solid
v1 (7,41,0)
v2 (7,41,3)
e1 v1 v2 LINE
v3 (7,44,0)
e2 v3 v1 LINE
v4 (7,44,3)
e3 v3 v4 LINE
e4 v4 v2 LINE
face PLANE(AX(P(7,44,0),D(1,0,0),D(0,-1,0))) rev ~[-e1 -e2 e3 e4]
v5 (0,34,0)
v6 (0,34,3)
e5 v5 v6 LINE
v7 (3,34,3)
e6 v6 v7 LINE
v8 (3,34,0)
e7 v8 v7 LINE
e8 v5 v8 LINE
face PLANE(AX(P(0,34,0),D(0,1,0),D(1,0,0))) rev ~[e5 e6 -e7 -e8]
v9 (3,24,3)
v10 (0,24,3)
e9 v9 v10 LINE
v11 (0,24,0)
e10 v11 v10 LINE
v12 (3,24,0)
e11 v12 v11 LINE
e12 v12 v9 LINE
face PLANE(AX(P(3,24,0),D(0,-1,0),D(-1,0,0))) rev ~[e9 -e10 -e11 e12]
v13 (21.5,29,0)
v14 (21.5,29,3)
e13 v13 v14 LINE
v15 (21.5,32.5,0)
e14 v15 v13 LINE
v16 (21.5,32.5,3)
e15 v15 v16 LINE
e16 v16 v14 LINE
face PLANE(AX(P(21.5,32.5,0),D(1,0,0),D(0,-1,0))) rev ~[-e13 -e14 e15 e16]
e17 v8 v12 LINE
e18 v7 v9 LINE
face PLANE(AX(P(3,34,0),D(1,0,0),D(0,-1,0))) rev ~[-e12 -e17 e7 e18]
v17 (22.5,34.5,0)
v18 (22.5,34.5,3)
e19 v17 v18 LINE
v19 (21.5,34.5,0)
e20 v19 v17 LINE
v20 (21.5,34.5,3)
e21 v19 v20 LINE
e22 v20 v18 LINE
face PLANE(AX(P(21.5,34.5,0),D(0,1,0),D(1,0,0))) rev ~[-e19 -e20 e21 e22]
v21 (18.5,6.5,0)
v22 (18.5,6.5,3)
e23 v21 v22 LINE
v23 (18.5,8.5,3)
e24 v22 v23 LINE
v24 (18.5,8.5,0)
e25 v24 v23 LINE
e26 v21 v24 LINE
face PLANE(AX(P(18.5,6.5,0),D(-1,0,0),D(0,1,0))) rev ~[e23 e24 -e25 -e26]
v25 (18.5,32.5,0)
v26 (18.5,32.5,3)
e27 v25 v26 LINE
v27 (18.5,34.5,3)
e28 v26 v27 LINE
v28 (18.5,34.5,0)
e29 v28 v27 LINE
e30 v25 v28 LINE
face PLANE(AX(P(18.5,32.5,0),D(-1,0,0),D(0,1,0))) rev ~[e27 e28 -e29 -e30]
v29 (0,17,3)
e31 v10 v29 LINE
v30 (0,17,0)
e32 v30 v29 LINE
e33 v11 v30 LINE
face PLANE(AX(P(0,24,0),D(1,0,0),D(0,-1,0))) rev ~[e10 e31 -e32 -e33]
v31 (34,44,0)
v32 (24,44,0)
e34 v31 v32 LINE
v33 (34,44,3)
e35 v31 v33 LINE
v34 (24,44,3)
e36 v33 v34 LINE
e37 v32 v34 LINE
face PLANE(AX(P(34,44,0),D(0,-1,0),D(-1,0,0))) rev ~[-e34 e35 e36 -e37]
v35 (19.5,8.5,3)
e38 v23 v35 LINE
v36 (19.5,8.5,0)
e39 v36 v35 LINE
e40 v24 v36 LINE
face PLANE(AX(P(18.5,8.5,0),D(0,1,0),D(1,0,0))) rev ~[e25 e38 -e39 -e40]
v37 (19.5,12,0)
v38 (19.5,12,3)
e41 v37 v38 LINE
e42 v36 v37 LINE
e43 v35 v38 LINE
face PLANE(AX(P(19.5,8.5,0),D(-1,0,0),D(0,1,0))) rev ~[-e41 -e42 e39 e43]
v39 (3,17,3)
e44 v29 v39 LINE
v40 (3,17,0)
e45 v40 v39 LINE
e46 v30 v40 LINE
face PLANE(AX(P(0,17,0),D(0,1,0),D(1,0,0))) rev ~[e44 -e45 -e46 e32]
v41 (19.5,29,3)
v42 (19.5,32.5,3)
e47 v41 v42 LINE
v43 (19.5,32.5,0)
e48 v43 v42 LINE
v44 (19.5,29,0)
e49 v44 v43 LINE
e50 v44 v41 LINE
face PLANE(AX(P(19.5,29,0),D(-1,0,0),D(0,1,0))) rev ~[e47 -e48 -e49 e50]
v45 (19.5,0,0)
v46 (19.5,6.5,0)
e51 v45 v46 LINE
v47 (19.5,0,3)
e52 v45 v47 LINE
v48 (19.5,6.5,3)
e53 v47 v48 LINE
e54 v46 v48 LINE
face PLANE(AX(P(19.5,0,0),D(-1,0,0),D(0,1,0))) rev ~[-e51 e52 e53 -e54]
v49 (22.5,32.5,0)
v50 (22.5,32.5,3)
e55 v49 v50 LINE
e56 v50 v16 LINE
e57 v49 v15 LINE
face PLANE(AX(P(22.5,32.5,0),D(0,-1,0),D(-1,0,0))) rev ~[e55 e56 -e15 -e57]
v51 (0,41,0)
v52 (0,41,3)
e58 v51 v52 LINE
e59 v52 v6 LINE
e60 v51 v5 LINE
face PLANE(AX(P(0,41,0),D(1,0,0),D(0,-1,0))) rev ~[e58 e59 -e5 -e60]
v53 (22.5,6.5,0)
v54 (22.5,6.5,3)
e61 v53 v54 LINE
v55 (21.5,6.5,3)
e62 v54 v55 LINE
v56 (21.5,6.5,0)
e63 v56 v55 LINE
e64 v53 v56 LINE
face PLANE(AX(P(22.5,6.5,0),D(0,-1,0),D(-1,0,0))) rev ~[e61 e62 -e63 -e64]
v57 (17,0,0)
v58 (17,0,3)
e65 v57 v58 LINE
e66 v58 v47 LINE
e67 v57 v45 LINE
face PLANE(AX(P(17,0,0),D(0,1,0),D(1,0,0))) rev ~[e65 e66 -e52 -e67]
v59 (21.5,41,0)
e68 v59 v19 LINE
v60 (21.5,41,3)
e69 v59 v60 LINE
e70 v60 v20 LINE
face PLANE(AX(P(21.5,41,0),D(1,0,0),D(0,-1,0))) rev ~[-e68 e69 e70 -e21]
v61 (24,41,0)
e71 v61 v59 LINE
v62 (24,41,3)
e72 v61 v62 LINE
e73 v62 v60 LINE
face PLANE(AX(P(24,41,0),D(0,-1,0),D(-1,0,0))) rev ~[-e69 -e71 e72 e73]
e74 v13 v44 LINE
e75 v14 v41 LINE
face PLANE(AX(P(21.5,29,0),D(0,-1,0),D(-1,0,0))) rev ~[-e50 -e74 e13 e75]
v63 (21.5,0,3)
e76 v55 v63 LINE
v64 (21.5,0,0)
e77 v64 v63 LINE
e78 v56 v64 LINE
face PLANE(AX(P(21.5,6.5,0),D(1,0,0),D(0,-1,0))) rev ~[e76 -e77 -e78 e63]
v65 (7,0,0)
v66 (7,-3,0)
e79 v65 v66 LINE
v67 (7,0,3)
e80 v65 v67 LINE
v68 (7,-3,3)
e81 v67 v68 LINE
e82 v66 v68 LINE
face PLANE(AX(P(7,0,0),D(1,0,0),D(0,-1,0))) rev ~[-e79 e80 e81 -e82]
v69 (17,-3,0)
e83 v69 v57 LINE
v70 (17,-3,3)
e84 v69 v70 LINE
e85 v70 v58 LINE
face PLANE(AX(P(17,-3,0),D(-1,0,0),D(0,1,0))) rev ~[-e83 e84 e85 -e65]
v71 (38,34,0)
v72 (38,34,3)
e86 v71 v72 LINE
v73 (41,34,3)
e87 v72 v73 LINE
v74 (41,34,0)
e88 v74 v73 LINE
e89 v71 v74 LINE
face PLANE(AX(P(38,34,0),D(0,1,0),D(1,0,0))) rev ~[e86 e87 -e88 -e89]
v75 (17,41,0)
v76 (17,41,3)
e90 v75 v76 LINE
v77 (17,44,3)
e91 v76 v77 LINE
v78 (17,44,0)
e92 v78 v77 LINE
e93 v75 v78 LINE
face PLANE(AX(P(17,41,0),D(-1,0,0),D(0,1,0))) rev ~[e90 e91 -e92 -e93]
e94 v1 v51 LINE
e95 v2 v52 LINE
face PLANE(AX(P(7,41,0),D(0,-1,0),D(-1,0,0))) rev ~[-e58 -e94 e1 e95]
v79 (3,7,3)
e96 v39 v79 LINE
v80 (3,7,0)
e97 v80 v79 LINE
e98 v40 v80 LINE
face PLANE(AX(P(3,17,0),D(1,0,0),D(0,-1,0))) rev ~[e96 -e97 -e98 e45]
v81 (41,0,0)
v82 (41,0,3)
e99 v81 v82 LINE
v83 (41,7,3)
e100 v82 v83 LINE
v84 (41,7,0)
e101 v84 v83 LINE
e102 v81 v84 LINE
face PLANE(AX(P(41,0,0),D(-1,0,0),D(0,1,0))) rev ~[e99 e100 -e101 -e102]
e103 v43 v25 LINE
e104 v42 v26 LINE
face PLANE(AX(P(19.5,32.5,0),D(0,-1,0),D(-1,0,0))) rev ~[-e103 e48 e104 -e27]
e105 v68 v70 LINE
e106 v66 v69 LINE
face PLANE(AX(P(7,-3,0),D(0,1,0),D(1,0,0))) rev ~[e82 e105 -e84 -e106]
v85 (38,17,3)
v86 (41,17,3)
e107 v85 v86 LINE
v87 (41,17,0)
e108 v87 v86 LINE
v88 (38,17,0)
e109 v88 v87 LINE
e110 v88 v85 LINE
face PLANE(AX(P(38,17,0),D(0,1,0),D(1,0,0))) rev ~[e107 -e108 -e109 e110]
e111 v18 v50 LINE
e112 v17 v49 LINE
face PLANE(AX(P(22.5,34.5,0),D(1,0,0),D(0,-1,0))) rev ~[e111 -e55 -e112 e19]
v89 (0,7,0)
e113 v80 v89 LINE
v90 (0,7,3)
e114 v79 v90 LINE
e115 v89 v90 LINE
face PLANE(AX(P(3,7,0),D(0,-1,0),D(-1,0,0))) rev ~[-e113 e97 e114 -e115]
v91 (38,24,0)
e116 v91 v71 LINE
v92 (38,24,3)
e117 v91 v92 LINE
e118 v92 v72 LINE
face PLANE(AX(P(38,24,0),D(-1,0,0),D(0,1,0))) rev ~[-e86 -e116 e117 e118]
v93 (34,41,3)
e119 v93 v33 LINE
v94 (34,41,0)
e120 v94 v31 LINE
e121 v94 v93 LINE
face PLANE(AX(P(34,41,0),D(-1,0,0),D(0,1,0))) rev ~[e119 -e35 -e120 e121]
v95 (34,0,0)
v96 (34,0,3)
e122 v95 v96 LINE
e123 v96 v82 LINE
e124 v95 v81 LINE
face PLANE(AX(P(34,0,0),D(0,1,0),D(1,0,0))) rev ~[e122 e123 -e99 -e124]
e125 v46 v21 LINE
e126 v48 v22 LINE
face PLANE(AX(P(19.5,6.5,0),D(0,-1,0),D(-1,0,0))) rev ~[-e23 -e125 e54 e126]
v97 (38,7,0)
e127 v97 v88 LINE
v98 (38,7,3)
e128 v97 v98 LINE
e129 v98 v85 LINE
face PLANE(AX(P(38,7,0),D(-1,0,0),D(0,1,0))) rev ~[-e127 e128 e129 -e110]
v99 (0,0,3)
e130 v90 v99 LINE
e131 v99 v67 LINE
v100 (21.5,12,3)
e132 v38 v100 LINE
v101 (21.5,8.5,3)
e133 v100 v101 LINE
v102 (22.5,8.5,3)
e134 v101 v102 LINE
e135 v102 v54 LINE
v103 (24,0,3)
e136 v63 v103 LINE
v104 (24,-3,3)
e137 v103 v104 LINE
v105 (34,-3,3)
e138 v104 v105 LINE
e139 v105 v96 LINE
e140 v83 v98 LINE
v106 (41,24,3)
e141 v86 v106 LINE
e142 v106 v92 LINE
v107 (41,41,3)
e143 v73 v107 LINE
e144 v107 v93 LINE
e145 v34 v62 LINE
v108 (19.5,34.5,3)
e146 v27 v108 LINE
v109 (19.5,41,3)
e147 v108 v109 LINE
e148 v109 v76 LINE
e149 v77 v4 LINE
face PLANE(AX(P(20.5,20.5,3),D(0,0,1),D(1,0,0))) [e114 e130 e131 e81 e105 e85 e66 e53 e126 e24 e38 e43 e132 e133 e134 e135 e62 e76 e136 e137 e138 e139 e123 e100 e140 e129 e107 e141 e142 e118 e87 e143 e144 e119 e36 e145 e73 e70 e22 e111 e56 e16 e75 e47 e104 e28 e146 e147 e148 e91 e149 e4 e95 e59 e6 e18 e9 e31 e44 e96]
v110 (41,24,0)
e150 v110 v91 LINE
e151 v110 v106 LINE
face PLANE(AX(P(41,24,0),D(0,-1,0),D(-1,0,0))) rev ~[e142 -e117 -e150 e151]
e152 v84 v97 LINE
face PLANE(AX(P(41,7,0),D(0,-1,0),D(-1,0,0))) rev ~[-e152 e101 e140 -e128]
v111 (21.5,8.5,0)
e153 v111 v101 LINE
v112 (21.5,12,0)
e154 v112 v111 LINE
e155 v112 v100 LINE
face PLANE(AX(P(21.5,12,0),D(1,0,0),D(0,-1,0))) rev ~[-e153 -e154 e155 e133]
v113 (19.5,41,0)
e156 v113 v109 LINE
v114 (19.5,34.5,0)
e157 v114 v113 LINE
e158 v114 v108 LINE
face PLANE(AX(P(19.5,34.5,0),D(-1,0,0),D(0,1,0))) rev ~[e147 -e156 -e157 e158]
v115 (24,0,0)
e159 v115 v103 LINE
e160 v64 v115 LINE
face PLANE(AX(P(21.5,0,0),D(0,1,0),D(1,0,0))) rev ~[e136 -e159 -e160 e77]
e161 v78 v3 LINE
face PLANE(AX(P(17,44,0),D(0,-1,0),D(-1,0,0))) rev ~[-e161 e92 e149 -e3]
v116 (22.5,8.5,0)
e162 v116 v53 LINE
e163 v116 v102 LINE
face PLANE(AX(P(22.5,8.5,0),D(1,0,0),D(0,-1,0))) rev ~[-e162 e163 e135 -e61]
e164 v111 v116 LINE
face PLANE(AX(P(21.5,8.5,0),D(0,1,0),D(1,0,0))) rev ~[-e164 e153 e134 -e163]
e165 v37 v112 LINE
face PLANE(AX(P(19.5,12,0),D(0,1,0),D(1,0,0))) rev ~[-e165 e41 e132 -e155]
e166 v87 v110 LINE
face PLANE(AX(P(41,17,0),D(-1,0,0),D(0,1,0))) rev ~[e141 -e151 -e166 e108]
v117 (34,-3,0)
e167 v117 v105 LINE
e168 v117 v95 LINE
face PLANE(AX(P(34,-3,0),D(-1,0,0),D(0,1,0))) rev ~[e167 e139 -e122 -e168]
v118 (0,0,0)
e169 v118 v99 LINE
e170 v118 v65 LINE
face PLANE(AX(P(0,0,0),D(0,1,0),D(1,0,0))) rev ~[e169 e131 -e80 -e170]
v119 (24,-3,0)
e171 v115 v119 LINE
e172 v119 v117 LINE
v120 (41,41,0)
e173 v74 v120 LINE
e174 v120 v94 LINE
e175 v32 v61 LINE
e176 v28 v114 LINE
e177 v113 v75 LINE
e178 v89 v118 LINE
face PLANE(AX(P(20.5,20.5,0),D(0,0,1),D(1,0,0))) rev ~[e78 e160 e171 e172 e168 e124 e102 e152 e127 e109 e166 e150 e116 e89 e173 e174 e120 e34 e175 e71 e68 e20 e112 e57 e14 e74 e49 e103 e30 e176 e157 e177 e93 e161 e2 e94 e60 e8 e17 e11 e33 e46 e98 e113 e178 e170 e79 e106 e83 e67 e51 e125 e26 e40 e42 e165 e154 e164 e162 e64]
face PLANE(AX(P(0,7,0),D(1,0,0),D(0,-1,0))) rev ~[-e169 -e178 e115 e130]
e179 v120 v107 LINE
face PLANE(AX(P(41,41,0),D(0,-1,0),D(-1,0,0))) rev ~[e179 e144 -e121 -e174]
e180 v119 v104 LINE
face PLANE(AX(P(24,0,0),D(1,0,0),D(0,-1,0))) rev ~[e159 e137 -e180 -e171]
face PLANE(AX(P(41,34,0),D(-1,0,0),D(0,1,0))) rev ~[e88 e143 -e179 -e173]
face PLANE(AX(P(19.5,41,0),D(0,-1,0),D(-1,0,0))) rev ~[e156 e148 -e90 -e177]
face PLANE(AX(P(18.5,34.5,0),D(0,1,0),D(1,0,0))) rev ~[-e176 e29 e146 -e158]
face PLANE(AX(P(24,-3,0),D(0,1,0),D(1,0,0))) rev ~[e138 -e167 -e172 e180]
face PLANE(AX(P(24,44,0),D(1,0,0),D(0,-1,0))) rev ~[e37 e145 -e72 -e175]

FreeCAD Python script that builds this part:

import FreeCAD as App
import Part
import Sketcher
Q = App.Units.Quantity


def add_polygon(sketch, points):
    """Adds a closed chain of lines whose ends are joined by coincident constraints."""
    first, n = sketch.GeometryCount, len(points)
    for a, b in zip(points, points[1:] + points[:1]):
        sketch.addGeometry(Part.LineSegment(App.Vector(*a, 0), App.Vector(*b, 0)), False)
    for i in range(n):
        sketch.addConstraint(Sketcher.Constraint("Coincident", first + i, 2, first + (i + 1) % n, 1))

doc = App.newDocument("Part")
params = doc.addObject("Spreadsheet::Sheet", "Params")
for row, (alias, value) in enumerate([
    ("sketch1_width", "7 mm"),
    ("sketch1_width2", "10 mm"),
    ("sketch1_width3", "1 mm"),
    ("sketch1_width4", "2 mm"),
    ("sketch1_width5", "3 mm"),
    ("pad1_length", "3 mm"),
], start=1):
    params.set(f"A{row}", alias)
    params.set(f"B{row}", "=" + value)
    params.setAlias(f"B{row}", alias)

body = doc.addObject("PartDesign::Body", "Body")

sketch1 = body.newObject("Sketcher::SketchObject", "Sketch")
sketch1.AttachmentSupport = (doc.getObject("XY_Plane"), [""])
sketch1.MapMode = "FlatFace"
add_polygon(sketch1, [(0, 7), (0, 0), (7, 0), (7, -3), (17, -3), (17, 0), (19.5, 0), (19.5, 6.5), (18.5, 6.5), (18.5, 8.5), (19.5, 8.5), (19.5, 12), (21.5, 12), (21.5, 8.5), (22.5, 8.5), (22.5, 6.5), (21.5, 6.5), (21.5, 0), (24, 0), (24, -3), (34, -3), (34, 0), (41, 0), (41, 7), (38, 7), (38, 17), (41, 17), (41, 24), (38, 24), (38, 34), (41, 34), (41, 41), (34, 41), (34, 44), (24, 44), (24, 41), (21.5, 41), (21.5, 34.5), (22.5, 34.5), (22.5, 32.5), (21.5, 32.5), (21.5, 29), (19.5, 29), (19.5, 32.5), (18.5, 32.5), (18.5, 34.5), (19.5, 34.5), (19.5, 41), (17, 41), (17, 44), (7, 44), (7, 41), (0, 41), (0, 34), (3, 34), (3, 24), (0, 24), (0, 17), (3, 17), (3, 7)])
sketch1.addConstraint([
    Sketcher.Constraint("Vertical", 0),
    Sketcher.Constraint("Horizontal", 1),
    Sketcher.Constraint("Vertical", 2),
    Sketcher.Constraint("Horizontal", 3),
    Sketcher.Constraint("Vertical", 4),
    Sketcher.Constraint("Horizontal", 5),
    Sketcher.Constraint("Vertical", 6),
    Sketcher.Constraint("Horizontal", 7),
    Sketcher.Constraint("Vertical", 8),
    Sketcher.Constraint("Horizontal", 9),
    Sketcher.Constraint("Vertical", 10),
    Sketcher.Constraint("Horizontal", 11),
    Sketcher.Constraint("Vertical", 12),
    Sketcher.Constraint("Horizontal", 13),
    Sketcher.Constraint("Vertical", 14),
    Sketcher.Constraint("Horizontal", 15),
    Sketcher.Constraint("Vertical", 16),
    Sketcher.Constraint("Horizontal", 17),
    Sketcher.Constraint("Vertical", 18),
    Sketcher.Constraint("Horizontal", 19),
    Sketcher.Constraint("Vertical", 20),
    Sketcher.Constraint("Horizontal", 21),
    Sketcher.Constraint("Vertical", 22),
    Sketcher.Constraint("Horizontal", 23),
    Sketcher.Constraint("Vertical", 24),
    Sketcher.Constraint("Horizontal", 25),
    Sketcher.Constraint("Vertical", 26),
    Sketcher.Constraint("Horizontal", 27),
    Sketcher.Constraint("Vertical", 28),
    Sketcher.Constraint("Horizontal", 29),
    Sketcher.Constraint("Vertical", 30),
    Sketcher.Constraint("Horizontal", 31),
    Sketcher.Constraint("Vertical", 32),
    Sketcher.Constraint("Horizontal", 33),
    Sketcher.Constraint("Vertical", 34),
    Sketcher.Constraint("Horizontal", 35),
    Sketcher.Constraint("Vertical", 36),
    Sketcher.Constraint("Horizontal", 37),
    Sketcher.Constraint("Vertical", 38),
    Sketcher.Constraint("Horizontal", 39),
    Sketcher.Constraint("Vertical", 40),
    Sketcher.Constraint("Horizontal", 41),
    Sketcher.Constraint("Vertical", 42),
    Sketcher.Constraint("Horizontal", 43),
    Sketcher.Constraint("Vertical", 44),
    Sketcher.Constraint("Horizontal", 45),
    Sketcher.Constraint("Vertical", 46),
    Sketcher.Constraint("Horizontal", 47),
    Sketcher.Constraint("Vertical", 48),
    Sketcher.Constraint("Horizontal", 49),
    Sketcher.Constraint("Vertical", 50),
    Sketcher.Constraint("Horizontal", 51),
    Sketcher.Constraint("Vertical", 52),
    Sketcher.Constraint("Horizontal", 53),
    Sketcher.Constraint("Vertical", 54),
    Sketcher.Constraint("Horizontal", 55),
    Sketcher.Constraint("Vertical", 56),
    Sketcher.Constraint("Horizontal", 57),
    Sketcher.Constraint("Vertical", 58),
    Sketcher.Constraint("Horizontal", 59),
    Sketcher.Constraint("Coincident", 0, 2, -1, 1),
    Sketcher.Constraint("PointOnObject", 4, 2, -1),
    Sketcher.Constraint("PointOnObject", 16, 2, -1),
    Sketcher.Constraint("PointOnObject", 20, 2, -1),
    Sketcher.Constraint("PointOnObject", 51, 2, -2),
    Sketcher.Constraint("PointOnObject", 55, 2, -2),
    Sketcher.Constraint("Horizontal", 9, 2, 12, 2),
    Sketcher.Constraint("Horizontal", 7, 2, 14, 2),
    Sketcher.Constraint("Horizontal", 3, 2, 18, 2),
    Sketcher.Constraint("Horizontal", 31, 2, 34, 2),
    Sketcher.Constraint("Horizontal", 39, 2, 42, 2),
    Sketcher.Constraint("Horizontal", 37, 2, 44, 2),
    Sketcher.Constraint("Horizontal", 35, 2, 46, 2),
    Sketcher.Constraint("Horizontal", 33, 2, 48, 2),
    Sketcher.Constraint("Horizontal", 47, 2, 50, 2),
    Sketcher.Constraint("Horizontal", 29, 2, 52, 2),
    Sketcher.Constraint("Horizontal", 27, 2, 54, 2),
    Sketcher.Constraint("Horizontal", 25, 2, 56, 2),
    Sketcher.Constraint("Horizontal", 23, 2, 58, 2),
    Sketcher.Constraint("Vertical", 6, 2, 9, 2),
    Sketcher.Constraint("Vertical", 12, 2, 15, 2),
    Sketcher.Constraint("Vertical", 22, 2, 25, 2),
    Sketcher.Constraint("Vertical", 24, 2, 27, 2),
    Sketcher.Constraint("Vertical", 26, 2, 29, 2),
    Sketcher.Constraint("Vertical", 20, 2, 31, 2),
    Sketcher.Constraint("Vertical", 18, 2, 33, 2),
    Sketcher.Constraint("Vertical", 16, 2, 35, 2),
    Sketcher.Constraint("Vertical", 14, 2, 37, 2),
    Sketcher.Constraint("Vertical", 36, 2, 39, 2),
    Sketcher.Constraint("Vertical", 10, 2, 41, 2),
    Sketcher.Constraint("Vertical", 8, 2, 43, 2),
    Sketcher.Constraint("Vertical", 42, 2, 45, 2),
    Sketcher.Constraint("Vertical", 4, 2, 47, 2),
    Sketcher.Constraint("Vertical", 2, 2, 49, 2),
    Sketcher.Constraint("Vertical", 54, 2, 57, 2),
    Sketcher.Constraint("Equal", 9, 13),
    Sketcher.Constraint("Equal", 5, 17),
    Sketcher.Constraint("Equal", 3, 19),
    Sketcher.Constraint("Equal", 1, 21),
    Sketcher.Constraint("Equal", 29, 53),
    Sketcher.Constraint("Equal", 51, 0),
    Sketcher.Constraint("Equal", 59, 2),
    Sketcher.Constraint("Equal", 41, 8),
    Sketcher.Constraint("Equal", 49, 24),
    Sketcher.Constraint("Equal", 22, 26),
    Sketcher.Constraint("Equal", 24, 28),
    Sketcher.Constraint("Equal", 26, 30),
    Sketcher.Constraint("Equal", 20, 32),
    Sketcher.Constraint("Equal", 16, 36),
    Sketcher.Constraint("Equal", 14, 38),
    Sketcher.Constraint("Equal", 12, 40),
    Sketcher.Constraint("DistanceX", 1, 1, 1, 2, Q("7 mm")),
    Sketcher.Constraint("DistanceX", 3, 1, 3, 2, Q("10 mm")),
    Sketcher.Constraint("DistanceX", 7, 2, 7, 1, Q("1 mm")),
    Sketcher.Constraint("DistanceX", 11, 1, 11, 2, Q("2 mm")),
    Sketcher.Constraint("DistanceX", 23, 2, 23, 1, Q("3 mm")),
    Sketcher.Constraint("DistanceX", 5, 1, 5, 2, Q("2.5 mm")),
    Sketcher.Constraint("DistanceY", 6, 1, 6, 2, Q("6.5 mm")),
    Sketcher.Constraint("DistanceY", 10, 1, 10, 2, Q("3.5 mm")),
])
sketch1.setExpression("Constraints[171]", "Params.sketch1_width")
sketch1.setExpression("Constraints[172]", "Params.sketch1_width2")
sketch1.setExpression("Constraints[173]", "Params.sketch1_width3")
sketch1.setExpression("Constraints[174]", "Params.sketch1_width4")
sketch1.setExpression("Constraints[175]", "Params.sketch1_width5")
pad1 = body.newObject("PartDesign::Pad", "Pad")
pad1.Profile = sketch1
pad1.setExpression("Length", "Params.pad1_length")

doc.recompute()
